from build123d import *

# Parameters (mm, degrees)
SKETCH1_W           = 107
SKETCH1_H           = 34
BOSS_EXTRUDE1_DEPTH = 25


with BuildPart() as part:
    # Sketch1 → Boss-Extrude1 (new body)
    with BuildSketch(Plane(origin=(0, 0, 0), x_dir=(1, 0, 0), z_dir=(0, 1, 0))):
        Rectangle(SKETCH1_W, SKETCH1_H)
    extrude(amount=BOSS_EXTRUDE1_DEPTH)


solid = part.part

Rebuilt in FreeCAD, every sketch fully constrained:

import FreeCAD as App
import Part
import Sketcher

V = App.Vector
Q = App.Units.Quantity

doc = App.newDocument("Part")
params = doc.addObject("Spreadsheet::Sheet", "Params")
for row, (alias, value) in enumerate([
    ("sketch1_width", "107 mm"),
    ("sketch1_height", "34 mm"),
    ("pad1_length", "25 mm"),
], start=1):
    params.set(f"A{row}", alias)
    params.set(f"B{row}", "=" + value)
    params.setAlias(f"B{row}", alias)

body = doc.addObject("PartDesign::Body", "Body")

sketch1 = body.newObject("Sketcher::SketchObject", "Sketch")
sketch1.AttachmentSupport = (doc.getObject("XZ_Plane"), [""])
sketch1.MapMode = "FlatFace"
sketch1.addGeometry([
    Part.LineSegment(V(-54, -17, 0), V(-54, 17, 0)),
    Part.LineSegment(V(-54, 17, 0), V(54, 17, 0)),
    Part.LineSegment(V(54, 17, 0), V(54, -17, 0)),
    Part.LineSegment(V(54, -17, 0), V(-54, -17, 0)),
], False)
sketch1.addConstraint([
    Sketcher.Constraint("Coincident", 0, 2, 1, 1),
    Sketcher.Constraint("Coincident", 1, 2, 2, 1),
    Sketcher.Constraint("Coincident", 2, 2, 3, 1),
    Sketcher.Constraint("Coincident", 3, 2, 0, 1),
    Sketcher.Constraint("Vertical", 0),
    Sketcher.Constraint("Horizontal", 1),
    Sketcher.Constraint("Vertical", 2),
    Sketcher.Constraint("Horizontal", 3),
    Sketcher.Constraint("Symmetric", 0, 2, 2, 2, -1, 1),
    Sketcher.Constraint("DistanceX", 1, 1, 1, 2, Q("107 mm")),
    Sketcher.Constraint("DistanceY", 0, 1, 0, 2, Q("34 mm")),
])
sketch1.setExpression("Constraints[9]", "Params.sketch1_width")
sketch1.setExpression("Constraints[10]", "Params.sketch1_height")
pad1 = body.newObject("PartDesign::Pad", "Pad")
pad1.Profile = sketch1
pad1.setExpression("Length", "Params.pad1_length")
pad1.Reversed = True

doc.recompute()
